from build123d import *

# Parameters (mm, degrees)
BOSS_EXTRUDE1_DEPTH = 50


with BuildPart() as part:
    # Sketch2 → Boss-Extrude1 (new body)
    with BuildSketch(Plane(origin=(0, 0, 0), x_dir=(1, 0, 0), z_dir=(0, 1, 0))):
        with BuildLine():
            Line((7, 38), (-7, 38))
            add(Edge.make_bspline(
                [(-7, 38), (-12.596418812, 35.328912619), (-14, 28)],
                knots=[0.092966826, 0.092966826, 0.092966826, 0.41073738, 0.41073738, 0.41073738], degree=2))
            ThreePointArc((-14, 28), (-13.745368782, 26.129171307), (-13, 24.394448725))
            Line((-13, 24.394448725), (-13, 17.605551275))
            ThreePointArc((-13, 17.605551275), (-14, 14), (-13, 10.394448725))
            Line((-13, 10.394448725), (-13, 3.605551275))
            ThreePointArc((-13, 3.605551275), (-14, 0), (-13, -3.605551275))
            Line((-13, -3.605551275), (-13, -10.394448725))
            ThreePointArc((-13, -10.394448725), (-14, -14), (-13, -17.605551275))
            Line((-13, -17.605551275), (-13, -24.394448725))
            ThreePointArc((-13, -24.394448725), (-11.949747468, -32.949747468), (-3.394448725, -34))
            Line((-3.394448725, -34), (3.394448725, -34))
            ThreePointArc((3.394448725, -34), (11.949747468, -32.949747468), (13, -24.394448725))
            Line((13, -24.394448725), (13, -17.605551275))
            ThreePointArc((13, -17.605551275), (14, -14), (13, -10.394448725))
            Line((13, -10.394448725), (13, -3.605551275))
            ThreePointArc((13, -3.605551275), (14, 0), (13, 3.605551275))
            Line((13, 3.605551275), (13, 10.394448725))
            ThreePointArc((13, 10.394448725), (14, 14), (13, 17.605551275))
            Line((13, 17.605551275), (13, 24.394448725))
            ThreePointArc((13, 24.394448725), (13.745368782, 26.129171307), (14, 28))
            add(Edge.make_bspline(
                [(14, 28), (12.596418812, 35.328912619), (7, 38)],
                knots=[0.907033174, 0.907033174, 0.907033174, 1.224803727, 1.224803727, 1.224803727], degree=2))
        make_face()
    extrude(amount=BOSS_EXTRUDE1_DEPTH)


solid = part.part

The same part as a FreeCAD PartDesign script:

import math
import FreeCAD as App
import Part
import Sketcher

doc = App.newDocument("Part")
body = doc.addObject("PartDesign::Body", "Body")

# Sketch on XZ plane
sketch1 = body.newObject("Sketcher::SketchObject", "Sketch")
sketch1.AttachmentSupport = (doc.getObject("XZ_Plane"), [""])
sketch1.MapMode = "FlatFace"
sketch1.addGeometry([
    Part.LineSegment(App.Vector(7, -38, 0), App.Vector(-7, -38, 0)),  # 0
    Part.BSplineCurve([App.Vector(-7, -38, 0), App.Vector(-12.596419, -35.328913, 0), App.Vector(-14, -28, 0)], [3, 3], [0.092966826, 0.41073738], False, 2, [1, 1, 1], False),  # 1
    Part.ArcOfCircle(Part.Circle(App.Vector(-7, -28, 0), App.Vector(0, 0, 1), 7), math.radians(148.997281), math.radians(180)),  # 2
    Part.LineSegment(App.Vector(-13, -24.394449, 0), App.Vector(-13, -17.605551, 0)),  # 3
    Part.ArcOfCircle(Part.Circle(App.Vector(-7, -14, 0), App.Vector(0, 0, 1), 7), math.radians(148.997281), math.radians(211.002719)),  # 4
    Part.LineSegment(App.Vector(-13, -10.394449, 0), App.Vector(-13, -3.605551, 0)),  # 5
    Part.ArcOfCircle(Part.Circle(App.Vector(-7, 0, 0), App.Vector(0, 0, 1), 7), math.radians(148.997281), math.radians(211.002719)),  # 6
    Part.LineSegment(App.Vector(-13, 3.605551, 0), App.Vector(-13, 10.394449, 0)),  # 7
    Part.ArcOfCircle(Part.Circle(App.Vector(-7, 14, 0), App.Vector(0, 0, 1), 7), math.radians(148.997281), math.radians(211.002719)),  # 8
    Part.LineSegment(App.Vector(-13, 17.605551, 0), App.Vector(-13, 24.394449, 0)),  # 9
    Part.ArcOfCircle(Part.Circle(App.Vector(-7, 28, 0), App.Vector(0, 0, 1), 7), math.radians(58.997281), math.radians(211.002719)),  # 10
    Part.LineSegment(App.Vector(-3.394449, 34, 0), App.Vector(3.394449, 34, 0)),  # 11
    Part.ArcOfCircle(Part.Circle(App.Vector(7, 28, 0), App.Vector(0, 0, 1), 7), math.radians(-31.002719), math.radians(121.002719)),  # 12
    Part.LineSegment(App.Vector(13, 24.394449, 0), App.Vector(13, 17.605551, 0)),  # 13
    Part.ArcOfCircle(Part.Circle(App.Vector(7, 14, 0), App.Vector(0, 0, 1), 7), math.radians(-31.002719), math.radians(31.002719)),  # 14
    Part.LineSegment(App.Vector(13, 10.394449, 0), App.Vector(13, 3.605551, 0)),  # 15
    Part.ArcOfCircle(Part.Circle(App.Vector(7, 0, 0), App.Vector(0, 0, 1), 7), math.radians(-31.002719), math.radians(31.002719)),  # 16
    Part.LineSegment(App.Vector(13, -3.605551, 0), App.Vector(13, -10.394449, 0)),  # 17
    Part.ArcOfCircle(Part.Circle(App.Vector(7, -14, 0), App.Vector(0, 0, 1), 7), math.radians(-31.002719), math.radians(31.002719)),  # 18
    Part.LineSegment(App.Vector(13, -17.605551, 0), App.Vector(13, -24.394449, 0)),  # 19
    Part.ArcOfCircle(Part.Circle(App.Vector(7, -28, 0), App.Vector(0, 0, 1), 7), math.radians(0), math.radians(31.002719)),  # 20
    Part.BSplineCurve([App.Vector(14, -28, 0), App.Vector(12.596419, -35.328913, 0), App.Vector(7, -38, 0)], [3, 3], [0.907033174, 1.224803727], False, 2, [1, 1, 1], False),  # 21
], False)
sketch1.addConstraint([
    Sketcher.Constraint("Block", 1),
    Sketcher.Constraint("Block", 21),
    Sketcher.Constraint("Coincident", 0, 2, 1, 1),
    Sketcher.Constraint("Coincident", 1, 2, 2, 2),
    Sketcher.Constraint("Coincident", 2, 1, 3, 1),
    Sketcher.Constraint("Coincident", 3, 2, 4, 2),
    Sketcher.Constraint("Coincident", 4, 1, 5, 1),
    Sketcher.Constraint("Coincident", 5, 2, 6, 2),
    Sketcher.Constraint("Coincident", 6, 1, 7, 1),
    Sketcher.Constraint("Coincident", 7, 2, 8, 2),
    Sketcher.Constraint("Coincident", 8, 1, 9, 1),
    Sketcher.Constraint("Coincident", 9, 2, 10, 2),
    Sketcher.Constraint("Coincident", 10, 1, 11, 1),
    Sketcher.Constraint("Coincident", 11, 2, 12, 2),
    Sketcher.Constraint("Coincident", 12, 1, 13, 1),
    Sketcher.Constraint("Coincident", 13, 2, 14, 2),
    Sketcher.Constraint("Coincident", 14, 1, 15, 1),
    Sketcher.Constraint("Coincident", 15, 2, 16, 2),
    Sketcher.Constraint("Coincident", 16, 1, 17, 1),
    Sketcher.Constraint("Coincident", 17, 2, 18, 2),
    Sketcher.Constraint("Coincident", 18, 1, 19, 1),
    Sketcher.Constraint("Coincident", 19, 2, 20, 2),
    Sketcher.Constraint("Coincident", 20, 1, 21, 1),
    Sketcher.Constraint("Coincident", 21, 2, 0, 1),
    Sketcher.Constraint("Vertical", 3),
    Sketcher.Constraint("Vertical", 5),
    Sketcher.Constraint("Vertical", 7),
    Sketcher.Constraint("Vertical", 9),
    Sketcher.Constraint("Horizontal", 11),
    Sketcher.Constraint("Vertical", 13),
    Sketcher.Constraint("Vertical", 15),
    Sketcher.Constraint("Vertical", 17),
    Sketcher.Constraint("Vertical", 19),
    Sketcher.Constraint("PointOnObject", 6, 3, -1),
    Sketcher.Constraint("PointOnObject", 16, 3, -1),
    Sketcher.Constraint("Radius", 2, 7.0),
    Sketcher.Constraint("Radius", 4, 7.0),
    Sketcher.Constraint("Radius", 6, 7.0),
    Sketcher.Constraint("Radius", 8, 7.0),
    Sketcher.Constraint("Radius", 10, 7.0),
    Sketcher.Constraint("Radius", 12, 7.0),
    Sketcher.Constraint("Radius", 14, 7.0),
    Sketcher.Constraint("Radius", 16, 7.0),
    Sketcher.Constraint("Radius", 18, 7.0),
    Sketcher.Constraint("Radius", 20, 7.0),
    Sketcher.Constraint("DistanceY", 2, 3, -1, 1, 28.0),
    Sketcher.Constraint("DistanceX", 4, 3, -1, 1, 7.0),
    Sketcher.Constraint("DistanceY", 4, 3, -1, 1, 14.0),
    Sketcher.Constraint("DistanceX", 6, 3, -1, 1, 7.0),
    Sketcher.Constraint("DistanceX", 8, 3, -1, 1, 7.0),
    Sketcher.Constraint("DistanceY", -1, 1, 8, 3, 14.0),
    Sketcher.Constraint("DistanceX", 10, 3, -1, 1, 7.0),
    Sketcher.Constraint("DistanceY", -1, 1, 10, 3, 28.0),
    Sketcher.Constraint("DistanceX", -1, 1, 12, 3, 7.0),
    Sketcher.Constraint("DistanceY", -1, 1, 12, 3, 28.0),
    Sketcher.Constraint("DistanceX", -1, 1, 14, 3, 7.0),
    Sketcher.Constraint("DistanceY", -1, 1, 14, 3, 14.0),
    Sketcher.Constraint("DistanceX", -1, 1, 16, 3, 7.0),
    Sketcher.Constraint("DistanceX", -1, 1, 18, 3, 7.0),
    Sketcher.Constraint("DistanceY", 18, 3, -1, 1, 14.0),
    Sketcher.Constraint("DistanceY", 20, 3, -1, 1, 28.0),
    Sketcher.Constraint("DistanceX", 2, 1, -1, 1, 13.0),
    Sketcher.Constraint("DistanceX", 4, 1, -1, 1, 13.0),
    Sketcher.Constraint("DistanceX", 6, 1, -1, 1, 13.0),
    Sketcher.Constraint("DistanceX", 8, 1, -1, 1, 13.0),
    Sketcher.Constraint("DistanceY", -1, 1, 10, 1, 34.0),
    Sketcher.Constraint("DistanceX", -1, 1, 12, 1, 13.0),
    Sketcher.Constraint("DistanceX", -1, 1, 14, 1, 13.0),
    Sketcher.Constraint("DistanceX", -1, 1, 16, 1, 13.0),
    Sketcher.Constraint("DistanceX", -1, 1, 18, 1, 13.0),
])
pad1 = body.newObject("PartDesign::Pad", "Pad")
pad1.Profile = sketch1
pad1.Length = 50
pad1.Reversed = True

doc.recompute()
